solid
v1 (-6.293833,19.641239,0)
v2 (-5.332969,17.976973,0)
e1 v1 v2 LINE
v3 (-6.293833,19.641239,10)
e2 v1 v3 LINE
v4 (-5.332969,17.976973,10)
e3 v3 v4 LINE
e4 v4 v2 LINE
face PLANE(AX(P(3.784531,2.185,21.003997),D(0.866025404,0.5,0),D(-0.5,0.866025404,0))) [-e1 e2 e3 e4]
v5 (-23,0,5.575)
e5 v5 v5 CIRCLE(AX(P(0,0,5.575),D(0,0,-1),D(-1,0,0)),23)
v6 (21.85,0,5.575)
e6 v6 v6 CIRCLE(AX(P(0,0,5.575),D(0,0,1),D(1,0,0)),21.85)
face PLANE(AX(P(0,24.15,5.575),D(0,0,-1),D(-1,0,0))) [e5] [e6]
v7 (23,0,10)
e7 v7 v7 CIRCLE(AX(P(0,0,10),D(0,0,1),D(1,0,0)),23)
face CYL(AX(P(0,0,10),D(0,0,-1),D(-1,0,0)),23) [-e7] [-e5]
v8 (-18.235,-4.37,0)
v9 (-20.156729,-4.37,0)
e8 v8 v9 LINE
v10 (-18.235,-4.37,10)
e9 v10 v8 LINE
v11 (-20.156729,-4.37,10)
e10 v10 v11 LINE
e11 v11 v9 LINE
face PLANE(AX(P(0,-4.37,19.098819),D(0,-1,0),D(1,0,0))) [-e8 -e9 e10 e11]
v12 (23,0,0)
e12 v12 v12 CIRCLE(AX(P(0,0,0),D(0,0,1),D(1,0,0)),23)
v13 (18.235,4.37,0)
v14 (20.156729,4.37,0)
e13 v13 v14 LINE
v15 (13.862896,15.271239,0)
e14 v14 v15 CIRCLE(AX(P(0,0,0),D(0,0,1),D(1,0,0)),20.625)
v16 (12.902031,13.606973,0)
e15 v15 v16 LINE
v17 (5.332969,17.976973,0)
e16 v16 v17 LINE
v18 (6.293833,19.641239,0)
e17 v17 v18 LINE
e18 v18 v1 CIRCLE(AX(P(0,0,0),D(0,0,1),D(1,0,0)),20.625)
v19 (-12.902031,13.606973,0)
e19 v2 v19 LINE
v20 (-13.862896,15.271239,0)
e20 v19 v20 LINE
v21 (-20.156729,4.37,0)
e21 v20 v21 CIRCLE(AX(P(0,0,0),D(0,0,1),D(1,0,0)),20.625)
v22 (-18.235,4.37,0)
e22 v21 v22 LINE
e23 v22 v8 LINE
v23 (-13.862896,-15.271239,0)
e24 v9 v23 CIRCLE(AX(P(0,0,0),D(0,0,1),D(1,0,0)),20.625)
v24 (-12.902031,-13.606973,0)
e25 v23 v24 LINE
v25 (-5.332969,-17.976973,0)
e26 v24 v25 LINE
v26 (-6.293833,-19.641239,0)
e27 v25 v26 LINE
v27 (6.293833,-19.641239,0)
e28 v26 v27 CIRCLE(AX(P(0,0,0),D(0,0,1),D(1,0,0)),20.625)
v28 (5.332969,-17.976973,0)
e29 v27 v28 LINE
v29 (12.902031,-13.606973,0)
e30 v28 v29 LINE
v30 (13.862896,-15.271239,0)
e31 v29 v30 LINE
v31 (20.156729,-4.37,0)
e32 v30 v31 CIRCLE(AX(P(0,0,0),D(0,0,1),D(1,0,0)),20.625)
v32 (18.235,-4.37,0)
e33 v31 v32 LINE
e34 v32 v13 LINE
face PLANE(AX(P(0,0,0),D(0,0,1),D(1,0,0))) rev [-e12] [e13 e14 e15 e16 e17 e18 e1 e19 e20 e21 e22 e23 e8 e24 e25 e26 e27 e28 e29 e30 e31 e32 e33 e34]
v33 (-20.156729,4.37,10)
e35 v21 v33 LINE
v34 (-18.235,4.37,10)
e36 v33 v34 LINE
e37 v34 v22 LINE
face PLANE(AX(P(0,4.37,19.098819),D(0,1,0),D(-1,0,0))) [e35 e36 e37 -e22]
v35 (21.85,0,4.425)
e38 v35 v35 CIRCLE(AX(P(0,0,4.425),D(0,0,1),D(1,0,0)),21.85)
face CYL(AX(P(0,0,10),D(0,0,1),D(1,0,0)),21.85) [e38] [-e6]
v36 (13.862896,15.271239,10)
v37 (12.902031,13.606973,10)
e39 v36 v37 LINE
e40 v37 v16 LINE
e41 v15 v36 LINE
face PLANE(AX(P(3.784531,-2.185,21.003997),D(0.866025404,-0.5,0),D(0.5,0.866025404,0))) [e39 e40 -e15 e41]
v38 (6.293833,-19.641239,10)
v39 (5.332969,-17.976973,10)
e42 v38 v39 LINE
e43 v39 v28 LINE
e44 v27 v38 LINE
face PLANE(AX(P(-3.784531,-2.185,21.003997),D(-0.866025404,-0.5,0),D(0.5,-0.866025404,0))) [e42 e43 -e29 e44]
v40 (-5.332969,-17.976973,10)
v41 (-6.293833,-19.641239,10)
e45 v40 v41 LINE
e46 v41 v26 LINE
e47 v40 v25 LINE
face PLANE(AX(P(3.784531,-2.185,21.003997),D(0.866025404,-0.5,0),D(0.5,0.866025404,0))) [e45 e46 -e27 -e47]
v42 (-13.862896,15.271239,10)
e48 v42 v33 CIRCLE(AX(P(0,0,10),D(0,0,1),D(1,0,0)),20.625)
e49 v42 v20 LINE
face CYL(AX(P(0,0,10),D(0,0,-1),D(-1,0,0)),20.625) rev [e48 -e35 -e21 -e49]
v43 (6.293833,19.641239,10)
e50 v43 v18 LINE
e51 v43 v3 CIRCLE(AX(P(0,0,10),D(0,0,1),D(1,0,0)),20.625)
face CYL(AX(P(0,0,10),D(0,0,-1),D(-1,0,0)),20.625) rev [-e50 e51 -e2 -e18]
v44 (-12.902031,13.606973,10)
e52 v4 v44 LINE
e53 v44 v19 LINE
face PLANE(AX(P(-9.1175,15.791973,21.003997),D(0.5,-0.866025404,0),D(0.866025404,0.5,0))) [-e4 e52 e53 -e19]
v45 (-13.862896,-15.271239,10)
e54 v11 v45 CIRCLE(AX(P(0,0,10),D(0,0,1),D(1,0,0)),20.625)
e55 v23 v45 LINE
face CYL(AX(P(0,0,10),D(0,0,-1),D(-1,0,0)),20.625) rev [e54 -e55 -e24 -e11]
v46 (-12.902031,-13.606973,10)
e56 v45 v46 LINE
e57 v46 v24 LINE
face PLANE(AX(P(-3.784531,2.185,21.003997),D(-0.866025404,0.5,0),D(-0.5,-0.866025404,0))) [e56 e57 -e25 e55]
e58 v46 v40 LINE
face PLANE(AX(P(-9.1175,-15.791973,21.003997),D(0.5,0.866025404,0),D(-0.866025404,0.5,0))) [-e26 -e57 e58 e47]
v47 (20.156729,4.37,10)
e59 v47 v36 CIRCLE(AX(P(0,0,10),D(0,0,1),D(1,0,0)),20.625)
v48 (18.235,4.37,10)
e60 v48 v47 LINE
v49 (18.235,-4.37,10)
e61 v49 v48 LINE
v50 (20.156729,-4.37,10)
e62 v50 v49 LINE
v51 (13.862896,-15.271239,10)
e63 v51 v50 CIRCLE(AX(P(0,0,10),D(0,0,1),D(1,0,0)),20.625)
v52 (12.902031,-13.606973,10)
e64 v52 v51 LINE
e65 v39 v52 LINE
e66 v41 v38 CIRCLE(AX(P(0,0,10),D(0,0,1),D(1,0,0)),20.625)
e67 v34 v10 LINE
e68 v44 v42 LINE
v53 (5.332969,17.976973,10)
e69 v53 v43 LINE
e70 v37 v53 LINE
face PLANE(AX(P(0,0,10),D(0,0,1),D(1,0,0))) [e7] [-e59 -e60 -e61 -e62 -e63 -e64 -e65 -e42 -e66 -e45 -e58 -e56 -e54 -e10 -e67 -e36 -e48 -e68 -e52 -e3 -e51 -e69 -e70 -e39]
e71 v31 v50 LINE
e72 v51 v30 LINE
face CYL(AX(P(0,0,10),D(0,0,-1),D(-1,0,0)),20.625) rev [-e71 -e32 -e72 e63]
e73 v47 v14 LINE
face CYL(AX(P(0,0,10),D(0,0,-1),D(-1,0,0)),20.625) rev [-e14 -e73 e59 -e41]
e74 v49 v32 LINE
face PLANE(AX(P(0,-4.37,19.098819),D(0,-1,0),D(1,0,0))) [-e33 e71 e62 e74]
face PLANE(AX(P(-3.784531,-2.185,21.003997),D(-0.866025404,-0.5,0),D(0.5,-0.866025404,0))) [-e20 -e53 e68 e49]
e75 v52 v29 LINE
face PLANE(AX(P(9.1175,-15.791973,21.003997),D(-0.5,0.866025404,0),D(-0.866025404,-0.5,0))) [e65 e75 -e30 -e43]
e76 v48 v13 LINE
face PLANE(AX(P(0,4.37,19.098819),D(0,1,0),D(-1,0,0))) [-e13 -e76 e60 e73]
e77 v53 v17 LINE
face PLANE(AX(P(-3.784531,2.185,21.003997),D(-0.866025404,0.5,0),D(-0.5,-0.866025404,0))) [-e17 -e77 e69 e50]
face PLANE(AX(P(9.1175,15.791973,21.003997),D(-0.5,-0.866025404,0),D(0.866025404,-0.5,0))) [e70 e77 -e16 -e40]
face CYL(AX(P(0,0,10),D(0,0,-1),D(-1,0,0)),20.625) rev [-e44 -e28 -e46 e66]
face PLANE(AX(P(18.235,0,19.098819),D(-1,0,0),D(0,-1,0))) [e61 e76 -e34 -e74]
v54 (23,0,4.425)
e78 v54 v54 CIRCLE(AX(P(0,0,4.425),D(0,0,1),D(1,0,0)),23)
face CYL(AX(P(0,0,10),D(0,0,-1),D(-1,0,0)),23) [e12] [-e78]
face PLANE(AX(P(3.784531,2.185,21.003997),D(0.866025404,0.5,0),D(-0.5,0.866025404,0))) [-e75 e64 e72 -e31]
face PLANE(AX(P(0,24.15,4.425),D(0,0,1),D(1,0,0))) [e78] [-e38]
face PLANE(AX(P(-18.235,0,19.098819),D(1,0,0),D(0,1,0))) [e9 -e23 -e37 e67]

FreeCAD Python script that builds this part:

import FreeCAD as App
import Part
import Sketcher
from FreeCAD import Vector

doc = App.newDocument("Part")
body = doc.addObject("PartDesign::Body", "Body")

# Sketch on XY plane
sketch1 = doc.addObject("Sketcher::SketchObject", "Sketch")
body.addObject(sketch1)
sketch1.AttachmentSupport = (doc.XY_Plane, [""])
sketch1.MapMode = "FlatFace"
sketch1.addGeometry(Part.Circle(Vector(0, 0, 0), Vector(0, 0, 1), 23), False)
sketch1.addGeometry(Part.Circle(Vector(0, 0, 0), Vector(0, 0, 1), 20.625), False)
sketch1.addConstraint(Sketcher.Constraint("Coincident", 0, 3, -1, 1))
sketch1.addConstraint(Sketcher.Constraint("Coincident", 1, 3, -1, 1))
sketch1.addConstraint(Sketcher.Constraint("Diameter", 0, 46.0))
sketch1.addConstraint(Sketcher.Constraint("Diameter", 1, 41.25))
pad1 = doc.addObject("PartDesign::Pad", "Pad")
body.addObject(pad1)
pad1.Profile = sketch1
pad1.Length = 10

# Sketch on XY plane
sketch2 = doc.addObject("Sketcher::SketchObject", "Sketch001")
body.addObject(sketch2)
sketch2.AttachmentSupport = (doc.XY_Plane, [""])
sketch2.MapMode = "FlatFace"
sketch2.addGeometry(Part.LineSegment(Vector(-20.765, 4.37, 0), Vector(-20.765, -4.37, 0)), False)
sketch2.addGeometry(Part.LineSegment(Vector(-20.765, -4.37, 0), Vector(-18.235, -4.37, 0)), False)
sketch2.addGeometry(Part.LineSegment(Vector(-18.235, -4.37, 0), Vector(-18.235, 4.37, 0)), False)
sketch2.addGeometry(Part.LineSegment(Vector(-18.235, 4.37, 0), Vector(-20.765, 4.37, 0)), False)
sketch2.addConstraint(Sketcher.Constraint("Coincident", 0, 2, 1, 1))
sketch2.addConstraint(Sketcher.Constraint("Coincident", 1, 2, 2, 1))
sketch2.addConstraint(Sketcher.Constraint("Coincident", 2, 2, 3, 1))
sketch2.addConstraint(Sketcher.Constraint("Coincident", 3, 2, 0, 1))
sketch2.addConstraint(Sketcher.Constraint("Vertical", 0))
sketch2.addConstraint(Sketcher.Constraint("Horizontal", 1))
sketch2.addConstraint(Sketcher.Constraint("Vertical", 2))
sketch2.addConstraint(Sketcher.Constraint("Horizontal", 3))
sketch2.addConstraint(Sketcher.Constraint("DistanceX", 1, 1, 1, 2, 2.53))
sketch2.addConstraint(Sketcher.Constraint("DistanceY", 0, 2, 0, 1, 8.74))
sketch2.addConstraint(Sketcher.Constraint("DistanceY", 0, 2, -1, 1, 4.37))
sketch2.addConstraint(Sketcher.Constraint("DistanceX", 0, 2, -1, 1, 20.765))
pad2 = doc.addObject("PartDesign::Pad", "Pad001")
body.addObject(pad2)
pad2.Profile = sketch2
pad2.Length = 10
doc.recompute()

polarpattern = doc.addObject("PartDesign::PolarPattern", "PolarPattern")
body.addObject(polarpattern)
polarpattern.Originals = [pad2]
polarpattern.Axis = (doc.Z_Axis, [""])
polarpattern.Angle = 360
polarpattern.Occurrences = 6
body.Tip = polarpattern

# Sketch on YZ plane
sketch3 = doc.addObject("Sketcher::SketchObject", "Sketch002")
body.addObject(sketch3)
sketch3.AttachmentSupport = (doc.YZ_Plane, [""])
sketch3.MapMode = "FlatFace"
sketch3.addGeometry(Part.LineSegment(Vector(24.15, 5.575, 0), Vector(21.85, 5.575, 0)), False)
sketch3.addGeometry(Part.LineSegment(Vector(21.85, 5.575, 0), Vector(21.85, 4.425, 0)), False)
sketch3.addGeometry(Part.LineSegment(Vector(21.85, 4.425, 0), Vector(24.15, 4.425, 0)), False)
sketch3.addGeometry(Part.LineSegment(Vector(24.15, 4.425, 0), Vector(24.15, 5.575, 0)), False)
sketch3.addConstraint(Sketcher.Constraint("Coincident", 0, 2, 1, 1))
sketch3.addConstraint(Sketcher.Constraint("Coincident", 1, 2, 2, 1))
sketch3.addConstraint(Sketcher.Constraint("Coincident", 2, 2, 3, 1))
sketch3.addConstraint(Sketcher.Constraint("Coincident", 3, 2, 0, 1))
sketch3.addConstraint(Sketcher.Constraint("Horizontal", 0))
sketch3.addConstraint(Sketcher.Constraint("Vertical", 1))
sketch3.addConstraint(Sketcher.Constraint("Horizontal", 2))
sketch3.addConstraint(Sketcher.Constraint("Vertical", 3))
sketch3.addConstraint(Sketcher.Constraint("DistanceX", 0, 2, 0, 1, 2.3))
sketch3.addConstraint(Sketcher.Constraint("DistanceY", 1, 2, 1, 1, 1.15))
sketch3.addConstraint(Sketcher.Constraint("DistanceX", -1, 1, 0, 2, 21.85))
sketch3.addConstraint(Sketcher.Constraint("DistanceY", -1, 1, 0, 2, 5.575))
groove = doc.addObject("PartDesign::Groove", "Groove")
body.addObject(groove)
groove.Profile = sketch3
groove.ReferenceAxis = (sketch3, ["V_Axis"])
groove.Angle = 360

doc.recompute()
